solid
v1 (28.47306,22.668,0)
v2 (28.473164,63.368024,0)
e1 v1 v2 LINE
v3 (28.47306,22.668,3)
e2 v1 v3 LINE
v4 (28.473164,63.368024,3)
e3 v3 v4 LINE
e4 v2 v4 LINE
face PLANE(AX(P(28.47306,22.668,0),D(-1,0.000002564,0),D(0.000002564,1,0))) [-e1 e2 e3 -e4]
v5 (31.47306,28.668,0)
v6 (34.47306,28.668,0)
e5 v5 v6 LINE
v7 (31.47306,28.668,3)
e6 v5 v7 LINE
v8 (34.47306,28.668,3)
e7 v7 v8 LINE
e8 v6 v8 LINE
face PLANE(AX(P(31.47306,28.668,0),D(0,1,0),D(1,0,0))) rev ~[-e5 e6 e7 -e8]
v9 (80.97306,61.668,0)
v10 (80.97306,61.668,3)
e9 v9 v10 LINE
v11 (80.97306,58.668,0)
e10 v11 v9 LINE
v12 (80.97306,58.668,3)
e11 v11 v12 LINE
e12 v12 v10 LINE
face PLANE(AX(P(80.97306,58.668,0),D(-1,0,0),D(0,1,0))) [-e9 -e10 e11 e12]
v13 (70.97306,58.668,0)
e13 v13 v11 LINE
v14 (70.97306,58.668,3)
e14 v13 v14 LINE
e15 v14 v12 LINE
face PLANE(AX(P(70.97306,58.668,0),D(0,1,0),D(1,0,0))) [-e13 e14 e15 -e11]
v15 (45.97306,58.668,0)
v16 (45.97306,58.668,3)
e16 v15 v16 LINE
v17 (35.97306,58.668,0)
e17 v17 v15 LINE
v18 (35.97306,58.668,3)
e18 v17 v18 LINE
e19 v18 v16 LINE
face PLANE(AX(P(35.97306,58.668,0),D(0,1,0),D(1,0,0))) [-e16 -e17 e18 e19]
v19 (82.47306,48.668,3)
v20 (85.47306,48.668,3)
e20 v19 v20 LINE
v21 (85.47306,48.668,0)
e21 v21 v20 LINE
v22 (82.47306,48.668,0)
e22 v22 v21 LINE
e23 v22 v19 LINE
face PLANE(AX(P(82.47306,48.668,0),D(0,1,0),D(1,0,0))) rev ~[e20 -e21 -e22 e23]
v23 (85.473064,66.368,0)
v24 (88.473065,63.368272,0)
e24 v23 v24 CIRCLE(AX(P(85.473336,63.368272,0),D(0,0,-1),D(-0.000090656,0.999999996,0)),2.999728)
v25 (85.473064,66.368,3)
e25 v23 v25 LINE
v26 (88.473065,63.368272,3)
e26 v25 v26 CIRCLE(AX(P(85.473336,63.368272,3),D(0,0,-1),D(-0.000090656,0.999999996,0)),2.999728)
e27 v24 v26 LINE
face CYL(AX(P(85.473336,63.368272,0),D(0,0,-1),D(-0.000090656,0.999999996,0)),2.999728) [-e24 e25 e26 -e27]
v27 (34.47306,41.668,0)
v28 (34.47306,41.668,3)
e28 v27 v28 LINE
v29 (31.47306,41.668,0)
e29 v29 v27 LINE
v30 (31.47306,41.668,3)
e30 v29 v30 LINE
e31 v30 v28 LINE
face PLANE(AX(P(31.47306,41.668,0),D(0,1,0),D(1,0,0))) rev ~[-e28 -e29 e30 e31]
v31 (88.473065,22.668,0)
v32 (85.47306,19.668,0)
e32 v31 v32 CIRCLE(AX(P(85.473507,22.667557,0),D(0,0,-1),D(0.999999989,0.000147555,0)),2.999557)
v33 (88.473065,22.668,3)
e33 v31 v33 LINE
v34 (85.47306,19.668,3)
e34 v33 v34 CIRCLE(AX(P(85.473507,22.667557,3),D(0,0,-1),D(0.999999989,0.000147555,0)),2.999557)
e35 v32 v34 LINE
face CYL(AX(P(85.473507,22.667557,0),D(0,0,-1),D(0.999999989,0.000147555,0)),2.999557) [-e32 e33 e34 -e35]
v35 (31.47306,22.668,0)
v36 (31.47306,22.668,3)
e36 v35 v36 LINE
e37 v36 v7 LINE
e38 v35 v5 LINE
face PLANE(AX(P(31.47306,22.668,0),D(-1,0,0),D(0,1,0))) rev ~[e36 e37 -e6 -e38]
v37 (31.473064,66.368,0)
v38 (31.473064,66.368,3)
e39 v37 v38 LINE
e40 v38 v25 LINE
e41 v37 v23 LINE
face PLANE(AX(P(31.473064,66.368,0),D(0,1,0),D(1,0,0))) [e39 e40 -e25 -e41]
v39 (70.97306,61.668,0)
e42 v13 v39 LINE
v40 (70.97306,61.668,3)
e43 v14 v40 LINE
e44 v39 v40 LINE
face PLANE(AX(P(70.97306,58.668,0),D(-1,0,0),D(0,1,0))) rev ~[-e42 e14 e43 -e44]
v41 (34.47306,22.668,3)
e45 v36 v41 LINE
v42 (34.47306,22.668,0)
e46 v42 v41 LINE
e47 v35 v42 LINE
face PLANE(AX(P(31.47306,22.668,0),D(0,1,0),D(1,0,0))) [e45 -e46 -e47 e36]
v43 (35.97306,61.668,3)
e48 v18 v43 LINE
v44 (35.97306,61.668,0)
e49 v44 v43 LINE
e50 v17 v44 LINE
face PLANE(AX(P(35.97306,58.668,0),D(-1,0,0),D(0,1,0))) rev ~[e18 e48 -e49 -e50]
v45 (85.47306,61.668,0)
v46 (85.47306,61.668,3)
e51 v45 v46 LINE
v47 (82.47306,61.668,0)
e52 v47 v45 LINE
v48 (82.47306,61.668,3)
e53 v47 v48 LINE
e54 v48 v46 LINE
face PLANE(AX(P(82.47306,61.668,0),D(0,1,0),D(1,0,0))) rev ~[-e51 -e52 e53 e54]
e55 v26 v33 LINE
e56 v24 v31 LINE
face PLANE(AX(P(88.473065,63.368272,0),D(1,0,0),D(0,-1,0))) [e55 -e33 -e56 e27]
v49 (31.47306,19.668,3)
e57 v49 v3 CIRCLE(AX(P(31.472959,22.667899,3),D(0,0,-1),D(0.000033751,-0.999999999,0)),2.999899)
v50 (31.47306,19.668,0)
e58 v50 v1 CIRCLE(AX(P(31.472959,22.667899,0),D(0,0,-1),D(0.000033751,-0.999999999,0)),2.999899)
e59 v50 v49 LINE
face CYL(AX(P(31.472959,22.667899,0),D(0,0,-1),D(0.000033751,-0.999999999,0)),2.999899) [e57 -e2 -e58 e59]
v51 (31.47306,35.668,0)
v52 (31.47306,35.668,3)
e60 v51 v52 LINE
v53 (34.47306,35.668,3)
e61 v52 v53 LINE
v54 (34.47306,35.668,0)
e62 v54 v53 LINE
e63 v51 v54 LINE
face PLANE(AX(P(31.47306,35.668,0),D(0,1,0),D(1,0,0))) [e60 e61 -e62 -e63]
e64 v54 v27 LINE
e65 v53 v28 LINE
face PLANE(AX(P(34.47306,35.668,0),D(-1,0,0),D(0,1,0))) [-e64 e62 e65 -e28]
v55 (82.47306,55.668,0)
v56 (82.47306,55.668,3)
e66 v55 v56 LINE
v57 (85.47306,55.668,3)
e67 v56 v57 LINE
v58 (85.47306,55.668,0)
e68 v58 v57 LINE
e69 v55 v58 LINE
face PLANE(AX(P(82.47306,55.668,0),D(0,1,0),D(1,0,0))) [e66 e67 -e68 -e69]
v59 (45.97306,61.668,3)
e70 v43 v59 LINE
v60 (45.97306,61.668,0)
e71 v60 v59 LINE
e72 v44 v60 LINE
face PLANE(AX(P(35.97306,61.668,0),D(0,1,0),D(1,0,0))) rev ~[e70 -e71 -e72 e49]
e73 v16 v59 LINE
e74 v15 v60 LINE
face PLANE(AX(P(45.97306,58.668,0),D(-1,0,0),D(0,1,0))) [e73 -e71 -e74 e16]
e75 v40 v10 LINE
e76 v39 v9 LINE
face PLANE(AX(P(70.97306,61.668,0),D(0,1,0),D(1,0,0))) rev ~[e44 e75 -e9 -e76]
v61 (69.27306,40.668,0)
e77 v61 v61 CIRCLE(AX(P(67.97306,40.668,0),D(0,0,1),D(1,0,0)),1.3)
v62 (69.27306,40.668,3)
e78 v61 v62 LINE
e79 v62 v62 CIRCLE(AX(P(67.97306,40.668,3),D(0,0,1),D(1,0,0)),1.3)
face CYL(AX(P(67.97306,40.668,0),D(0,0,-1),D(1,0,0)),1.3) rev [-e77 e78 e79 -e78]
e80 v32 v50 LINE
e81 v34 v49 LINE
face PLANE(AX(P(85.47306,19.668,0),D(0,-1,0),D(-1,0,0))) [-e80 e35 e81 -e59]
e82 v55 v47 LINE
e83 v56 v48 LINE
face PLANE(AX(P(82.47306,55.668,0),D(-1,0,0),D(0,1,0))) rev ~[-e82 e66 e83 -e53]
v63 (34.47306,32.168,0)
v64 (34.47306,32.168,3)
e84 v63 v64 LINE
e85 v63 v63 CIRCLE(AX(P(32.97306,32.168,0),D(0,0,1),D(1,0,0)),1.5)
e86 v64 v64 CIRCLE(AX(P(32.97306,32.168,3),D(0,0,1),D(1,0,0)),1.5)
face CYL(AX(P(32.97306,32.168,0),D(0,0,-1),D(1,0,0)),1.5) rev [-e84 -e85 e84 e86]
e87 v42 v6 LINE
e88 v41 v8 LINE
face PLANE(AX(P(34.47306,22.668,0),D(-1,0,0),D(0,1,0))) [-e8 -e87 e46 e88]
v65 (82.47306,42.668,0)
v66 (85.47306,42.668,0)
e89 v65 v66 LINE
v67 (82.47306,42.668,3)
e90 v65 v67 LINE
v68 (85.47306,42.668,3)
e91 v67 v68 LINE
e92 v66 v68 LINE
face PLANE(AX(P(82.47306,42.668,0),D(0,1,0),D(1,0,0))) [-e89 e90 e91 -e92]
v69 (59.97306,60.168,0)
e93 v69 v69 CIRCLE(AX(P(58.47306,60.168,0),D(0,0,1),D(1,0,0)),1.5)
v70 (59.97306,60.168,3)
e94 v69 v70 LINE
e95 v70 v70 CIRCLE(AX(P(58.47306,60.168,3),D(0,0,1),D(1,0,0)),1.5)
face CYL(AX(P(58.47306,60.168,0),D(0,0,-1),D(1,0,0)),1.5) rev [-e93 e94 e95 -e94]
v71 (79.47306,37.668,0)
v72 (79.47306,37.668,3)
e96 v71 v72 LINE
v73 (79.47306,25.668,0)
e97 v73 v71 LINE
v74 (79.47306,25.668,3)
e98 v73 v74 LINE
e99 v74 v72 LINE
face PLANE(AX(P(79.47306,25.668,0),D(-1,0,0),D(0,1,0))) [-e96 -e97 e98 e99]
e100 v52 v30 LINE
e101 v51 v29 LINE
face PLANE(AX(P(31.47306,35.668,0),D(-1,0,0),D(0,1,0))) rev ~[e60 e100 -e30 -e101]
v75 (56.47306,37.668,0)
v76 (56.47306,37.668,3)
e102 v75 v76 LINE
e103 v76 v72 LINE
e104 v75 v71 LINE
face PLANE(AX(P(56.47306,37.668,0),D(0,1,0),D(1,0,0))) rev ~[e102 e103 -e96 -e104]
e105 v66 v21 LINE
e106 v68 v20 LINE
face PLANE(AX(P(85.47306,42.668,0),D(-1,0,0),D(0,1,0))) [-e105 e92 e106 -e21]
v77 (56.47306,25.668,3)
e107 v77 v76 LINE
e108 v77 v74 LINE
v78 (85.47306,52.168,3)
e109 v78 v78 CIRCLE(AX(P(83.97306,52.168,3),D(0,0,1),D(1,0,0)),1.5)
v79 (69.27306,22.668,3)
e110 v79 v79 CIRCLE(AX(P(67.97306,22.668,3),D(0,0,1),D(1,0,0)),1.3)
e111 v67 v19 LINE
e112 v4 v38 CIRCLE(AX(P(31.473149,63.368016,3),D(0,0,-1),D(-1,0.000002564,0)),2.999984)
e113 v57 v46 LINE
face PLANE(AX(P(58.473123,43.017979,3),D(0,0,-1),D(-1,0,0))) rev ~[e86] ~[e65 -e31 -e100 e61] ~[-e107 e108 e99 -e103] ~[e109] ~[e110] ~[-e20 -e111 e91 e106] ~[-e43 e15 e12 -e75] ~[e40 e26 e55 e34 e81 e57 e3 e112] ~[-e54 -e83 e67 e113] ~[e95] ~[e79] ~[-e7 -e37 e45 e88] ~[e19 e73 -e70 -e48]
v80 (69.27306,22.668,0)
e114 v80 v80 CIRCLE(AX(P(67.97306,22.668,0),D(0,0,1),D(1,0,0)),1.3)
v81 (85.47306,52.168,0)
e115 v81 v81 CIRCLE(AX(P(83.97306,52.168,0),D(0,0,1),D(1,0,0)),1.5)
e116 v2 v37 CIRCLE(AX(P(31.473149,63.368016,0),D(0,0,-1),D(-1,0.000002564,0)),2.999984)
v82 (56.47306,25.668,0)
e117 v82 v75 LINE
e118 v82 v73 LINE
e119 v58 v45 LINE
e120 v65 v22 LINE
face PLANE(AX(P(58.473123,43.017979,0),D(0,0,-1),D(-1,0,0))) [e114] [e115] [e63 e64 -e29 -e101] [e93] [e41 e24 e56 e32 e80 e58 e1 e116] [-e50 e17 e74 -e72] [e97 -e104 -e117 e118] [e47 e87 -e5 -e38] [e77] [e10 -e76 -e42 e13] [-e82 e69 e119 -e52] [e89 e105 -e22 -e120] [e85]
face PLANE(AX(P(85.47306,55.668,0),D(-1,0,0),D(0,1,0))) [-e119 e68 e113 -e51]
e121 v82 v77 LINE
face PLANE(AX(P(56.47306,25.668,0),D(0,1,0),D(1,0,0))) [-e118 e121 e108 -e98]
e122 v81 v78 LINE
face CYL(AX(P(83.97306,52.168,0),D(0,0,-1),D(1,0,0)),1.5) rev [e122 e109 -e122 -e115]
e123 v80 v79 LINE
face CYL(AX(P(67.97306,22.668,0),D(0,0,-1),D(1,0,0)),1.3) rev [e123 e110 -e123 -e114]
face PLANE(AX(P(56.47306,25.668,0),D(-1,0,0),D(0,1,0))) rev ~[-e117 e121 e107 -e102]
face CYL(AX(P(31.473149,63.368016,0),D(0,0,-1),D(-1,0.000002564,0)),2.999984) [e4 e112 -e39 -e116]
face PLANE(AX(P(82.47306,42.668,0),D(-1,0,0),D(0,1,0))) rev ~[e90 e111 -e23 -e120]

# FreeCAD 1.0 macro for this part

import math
import FreeCAD as App
import Part
import Sketcher

V = App.Vector
Q = App.Units.Quantity


def add_polygon(sketch, points):
    """Adds a closed chain of lines whose ends are joined by coincident constraints."""
    first, n = sketch.GeometryCount, len(points)
    for a, b in zip(points, points[1:] + points[:1]):
        sketch.addGeometry(Part.LineSegment(App.Vector(*a, 0), App.Vector(*b, 0)), False)
    for i in range(n):
        sketch.addConstraint(Sketcher.Constraint("Coincident", first + i, 2, first + (i + 1) % n, 1))

doc = App.newDocument("Part")
body = doc.addObject("PartDesign::Body", "Body")

sketch1 = body.newObject("Sketcher::SketchObject", "Sketch")
sketch1.AttachmentSupport = (doc.getObject("XY_Plane"), [""])
sketch1.MapMode = "FlatFace"
sketch1.addGeometry(Part.LineSegment(V(28.5, 63.4, 0), V(28.5, 22.7, 0)), False)
sketch1.addGeometry(Part.ArcOfCircle(Part.Circle(V(31.5, 22.7, 0), V(0, 0, 1), 3), math.radians(180), math.radians(270)), False)
sketch1.addGeometry(Part.LineSegment(V(31.5, 19.7, 0), V(85.5, 19.7, 0)), False)
sketch1.addGeometry(Part.ArcOfCircle(Part.Circle(V(85.5, 22.7, 0), V(0, 0, 1), 3), math.radians(-90), math.radians(0)), False)
sketch1.addGeometry(Part.LineSegment(V(88.5, 22.7, 0), V(88.5, 63.4, 0)), False)
sketch1.addGeometry(Part.ArcOfCircle(Part.Circle(V(85.5, 63.4, 0), V(0, 0, 1), 3), math.radians(0), math.radians(90)), False)
sketch1.addGeometry(Part.LineSegment(V(85.5, 66.4, 0), V(31.5, 66.4, 0)), False)
sketch1.addGeometry(Part.ArcOfCircle(Part.Circle(V(31.5, 63.4, 0), V(0, 0, 1), 3), math.radians(90), math.radians(180)), False)
sketch1.addGeometry(Part.Circle(V(68, 22.7, 0), V(0, 0, 1), 1.3), False)
add_polygon(sketch1, [(56.5, 25.7), (56.5, 37.7), (79.5, 37.7), (79.5, 25.7)])
sketch1.addGeometry(Part.Circle(V(68, 40.7, 0), V(0, 0, 1), 1.3), False)
add_polygon(sketch1, [(31.5, 22.7), (31.5, 28.7), (34.5, 28.7), (34.5, 22.7)])
sketch1.addGeometry(Part.Circle(V(33, 32.2, 0), V(0, 0, 1), 1.5), False)
add_polygon(sketch1, [(31.5, 35.7), (31.5, 41.7), (34.5, 41.7), (34.5, 35.7)])
add_polygon(sketch1, [(82.5, 42.7), (82.5, 48.7), (85.5, 48.7), (85.5, 42.7)])
sketch1.addGeometry(Part.Circle(V(84, 52.2, 0), V(0, 0, 1), 1.5), False)
add_polygon(sketch1, [(82.5, 55.7), (82.5, 61.7), (85.5, 61.7), (85.5, 55.7)])
add_polygon(sketch1, [(71, 58.7), (71, 61.7), (81, 61.7), (81, 58.7)])
sketch1.addGeometry(Part.Circle(V(58.5, 60.2, 0), V(0, 0, 1), 1.5), False)
add_polygon(sketch1, [(36, 58.7), (36, 61.7), (46, 61.7), (46, 58.7)])
sketch1.addConstraint(Sketcher.Constraint("Coincident", 0, 2, 1, 1))
sketch1.addConstraint(Sketcher.Constraint("Coincident", 1, 2, 2, 1))
sketch1.addConstraint(Sketcher.Constraint("Coincident", 2, 2, 3, 1))
sketch1.addConstraint(Sketcher.Constraint("Coincident", 3, 2, 4, 1))
sketch1.addConstraint(Sketcher.Constraint("Tangent", 4, 2, 5, 1))
sketch1.addConstraint(Sketcher.Constraint("Coincident", 5, 2, 6, 1))
sketch1.addConstraint(Sketcher.Constraint("Coincident", 6, 2, 7, 1))
sketch1.addConstraint(Sketcher.Constraint("Tangent", 7, 2, 0, 1))
sketch1.addConstraint(Sketcher.Constraint("Horizontal", 2))
sketch1.addConstraint(Sketcher.Constraint("Vertical", 4))
sketch1.addConstraint(Sketcher.Constraint("Horizontal", 6))
sketch1.addConstraint(Sketcher.Constraint("Vertical", 9))
sketch1.addConstraint(Sketcher.Constraint("Horizontal", 10))
sketch1.addConstraint(Sketcher.Constraint("Vertical", 11))
sketch1.addConstraint(Sketcher.Constraint("Horizontal", 12))
sketch1.addConstraint(Sketcher.Constraint("Vertical", 14))
sketch1.addConstraint(Sketcher.Constraint("Horizontal", 15))
sketch1.addConstraint(Sketcher.Constraint("Vertical", 16))
sketch1.addConstraint(Sketcher.Constraint("Horizontal", 17))
sketch1.addConstraint(Sketcher.Constraint("Vertical", 19))
sketch1.addConstraint(Sketcher.Constraint("Horizontal", 20))
sketch1.addConstraint(Sketcher.Constraint("Vertical", 21))
sketch1.addConstraint(Sketcher.Constraint("Horizontal", 22))
sketch1.addConstraint(Sketcher.Constraint("Vertical", 23))
sketch1.addConstraint(Sketcher.Constraint("Horizontal", 24))
sketch1.addConstraint(Sketcher.Constraint("Vertical", 25))
sketch1.addConstraint(Sketcher.Constraint("Horizontal", 26))
sketch1.addConstraint(Sketcher.Constraint("Vertical", 28))
sketch1.addConstraint(Sketcher.Constraint("Horizontal", 29))
sketch1.addConstraint(Sketcher.Constraint("Vertical", 30))
sketch1.addConstraint(Sketcher.Constraint("Horizontal", 31))
sketch1.addConstraint(Sketcher.Constraint("Vertical", 32))
sketch1.addConstraint(Sketcher.Constraint("Horizontal", 33))
sketch1.addConstraint(Sketcher.Constraint("Vertical", 34))
sketch1.addConstraint(Sketcher.Constraint("Horizontal", 35))
sketch1.addConstraint(Sketcher.Constraint("Vertical", 37))
sketch1.addConstraint(Sketcher.Constraint("Horizontal", 38))
sketch1.addConstraint(Sketcher.Constraint("Vertical", 39))
sketch1.addConstraint(Sketcher.Constraint("Horizontal", 40))
sketch1.addConstraint(Sketcher.Constraint("Equal", 8, 13))
sketch1.addConstraint(Sketcher.Constraint("Equal", 18, 27))
sketch1.addConstraint(Sketcher.Constraint("Equal", 27, 36))
sketch1.addConstraint(Sketcher.Constraint("Horizontal", 8, 3, 0, 2))
sketch1.addConstraint(Sketcher.Constraint("Horizontal", 0, 2, 3, 2))
sketch1.addConstraint(Sketcher.Constraint("Horizontal", 3, 2, 16, 2))
sketch1.addConstraint(Sketcher.Constraint("Horizontal", 29, 2, 32, 2))
sketch1.addConstraint(Sketcher.Constraint("Horizontal", 33, 2, 37, 2))
sketch1.addConstraint(Sketcher.Constraint("Horizontal", 35, 2, 39, 2))
sketch1.addConstraint(Sketcher.Constraint("Vertical", 8, 3, 13, 3))
sketch1.addConstraint(Sketcher.Constraint("Vertical", 1, 2, 14, 2))
sketch1.addConstraint(Sketcher.Constraint("Vertical", 17, 2, 19, 2))
sketch1.addConstraint(Sketcher.Constraint("Vertical", 16, 2, 20, 2))
sketch1.addConstraint(Sketcher.Constraint("Vertical", 2, 2, 24, 2))
sketch1.addConstraint(Sketcher.Constraint("Vertical", 26, 2, 28, 2))
sketch1.addConstraint(Sketcher.Constraint("Vertical", 25, 2, 29, 2))
sketch1.addConstraint(Sketcher.Constraint("Equal", 2, 6))
sketch1.addConstraint(Sketcher.Constraint("Equal", 22, 24))
sketch1.addConstraint(Sketcher.Constraint("Equal", 35, 38))
sketch1.addConstraint(Sketcher.Constraint("Equal", 16, 19))
sketch1.addConstraint(Sketcher.Constraint("Equal", 21, 23))
sketch1.addConstraint(Sketcher.Constraint("Equal", 25, 28))
sketch1.addConstraint(Sketcher.Constraint("Equal", 31, 32))
sketch1.addConstraint(Sketcher.Constraint("Diameter", 18, Q("3 mm")))
sketch1.addConstraint(Sketcher.Constraint("Diameter", 8, Q("2.6 mm")))
sketch1.addConstraint(Sketcher.Constraint("DistanceX", 2, 1, 2, 2, Q("54 mm")))
sketch1.addConstraint(Sketcher.Constraint("DistanceX", 10, 1, 10, 2, Q("23 mm")))
sketch1.addConstraint(Sketcher.Constraint("DistanceX", 15, 1, 15, 2, Q("3 mm")))
sketch1.addConstraint(Sketcher.Constraint("DistanceX", 33, 1, 33, 2, Q("10 mm")))
sketch1.addConstraint(Sketcher.Constraint("DistanceY", 9, 1, 9, 2, Q("12 mm")))
sketch1.addConstraint(Sketcher.Constraint("DistanceY", 14, 1, 14, 2, Q("6 mm")))
sketch1.addConstraint(Sketcher.Constraint("DistanceY", 8, 3, 13, 3, Q("18 mm")))
sketch1.addConstraint(Sketcher.Constraint("DistanceX", 18, 3, 13, 3, Q("35 mm")))
sketch1.addConstraint(Sketcher.Constraint("DistanceX", 13, 3, 27, 3, Q("16 mm")))
sketch1.addConstraint(Sketcher.Constraint("DistanceY", 27, 3, 36, 3, Q("8 mm")))
sketch1.addConstraint(Sketcher.Constraint("DistanceY", 18, 3, 36, 3, Q("28 mm")))
sketch1.addConstraint(Sketcher.Constraint("DistanceX", 0, 2, 1, 2, Q("3 mm")))
sketch1.addConstraint(Sketcher.Constraint("DistanceY", 1, 2, 0, 2, Q("3 mm")))
sketch1.addConstraint(Sketcher.Constraint("DistanceX", 5, 2, 4, 2, Q("3 mm")))
sketch1.addConstraint(Sketcher.Constraint("DistanceY", 9, 2, 13, 3, Q("3 mm")))
sketch1.addConstraint(Sketcher.Constraint("DistanceX", 9, 2, 36, 3, Q("2 mm")))
sketch1.addConstraint(Sketcher.Constraint("DistanceX", 11, 2, 2, 2, Q("6 mm")))
sketch1.addConstraint(Sketcher.Constraint("DistanceY", 14, 2, 19, 2, Q("13 mm")))
sketch1.addConstraint(Sketcher.Constraint("DistanceY", 10, 2, 23, 2, Q("11 mm")))
sketch1.addConstraint(Sketcher.Constraint("DistanceY", 23, 2, 28, 2, Q("13 mm")))
sketch1.addConstraint(Sketcher.Constraint("Radius", 1, Q("2.999899 mm")))
sketch1.addConstraint(Sketcher.Constraint("DistanceY", 18, 3, 13, 3, Q("8.5 mm")))
sketch1.addConstraint(Sketcher.Constraint("DistanceX", 36, 3, 13, 3, Q("9.5 mm")))
sketch1.addConstraint(Sketcher.Constraint("DistanceY", 27, 3, 5, 2, Q("14.2 mm")))
sketch1.addConstraint(Sketcher.Constraint("DistanceX", 32, 2, 28, 2, Q("11.5 mm")))
sketch1.addConstraint(Sketcher.Constraint("DistanceX", 20, 2, 37, 2, Q("1.5 mm")))
sketch1.addConstraint(Sketcher.Constraint("Radius", 5, Q("2.999728 mm")))
sketch1.addConstraint(Sketcher.Constraint("DistanceY", -1, 1, 8, 3, Q("22.668 mm")))
sketch1.addConstraint(Sketcher.Constraint("Radius", 3, Q("2.999557 mm")))
sketch1.addConstraint(Sketcher.Constraint("Radius", 7, Q("2.999984 mm")))
sketch1.addConstraint(Sketcher.Constraint("DistanceX", 7, 2, 6, 2, Q("2.9999 mm")))
sketch1.addConstraint(Sketcher.Constraint("DistanceX", -1, 1, 1, 3, Q("31.472959 mm")))
sketch1.addConstraint(Sketcher.Constraint("DistanceX", -1, 1, 7, 3, Q("31.473149 mm")))
pad1 = body.newObject("PartDesign::Pad", "Pad")
pad1.Profile = sketch1
pad1.Length = 3

doc.recompute()
